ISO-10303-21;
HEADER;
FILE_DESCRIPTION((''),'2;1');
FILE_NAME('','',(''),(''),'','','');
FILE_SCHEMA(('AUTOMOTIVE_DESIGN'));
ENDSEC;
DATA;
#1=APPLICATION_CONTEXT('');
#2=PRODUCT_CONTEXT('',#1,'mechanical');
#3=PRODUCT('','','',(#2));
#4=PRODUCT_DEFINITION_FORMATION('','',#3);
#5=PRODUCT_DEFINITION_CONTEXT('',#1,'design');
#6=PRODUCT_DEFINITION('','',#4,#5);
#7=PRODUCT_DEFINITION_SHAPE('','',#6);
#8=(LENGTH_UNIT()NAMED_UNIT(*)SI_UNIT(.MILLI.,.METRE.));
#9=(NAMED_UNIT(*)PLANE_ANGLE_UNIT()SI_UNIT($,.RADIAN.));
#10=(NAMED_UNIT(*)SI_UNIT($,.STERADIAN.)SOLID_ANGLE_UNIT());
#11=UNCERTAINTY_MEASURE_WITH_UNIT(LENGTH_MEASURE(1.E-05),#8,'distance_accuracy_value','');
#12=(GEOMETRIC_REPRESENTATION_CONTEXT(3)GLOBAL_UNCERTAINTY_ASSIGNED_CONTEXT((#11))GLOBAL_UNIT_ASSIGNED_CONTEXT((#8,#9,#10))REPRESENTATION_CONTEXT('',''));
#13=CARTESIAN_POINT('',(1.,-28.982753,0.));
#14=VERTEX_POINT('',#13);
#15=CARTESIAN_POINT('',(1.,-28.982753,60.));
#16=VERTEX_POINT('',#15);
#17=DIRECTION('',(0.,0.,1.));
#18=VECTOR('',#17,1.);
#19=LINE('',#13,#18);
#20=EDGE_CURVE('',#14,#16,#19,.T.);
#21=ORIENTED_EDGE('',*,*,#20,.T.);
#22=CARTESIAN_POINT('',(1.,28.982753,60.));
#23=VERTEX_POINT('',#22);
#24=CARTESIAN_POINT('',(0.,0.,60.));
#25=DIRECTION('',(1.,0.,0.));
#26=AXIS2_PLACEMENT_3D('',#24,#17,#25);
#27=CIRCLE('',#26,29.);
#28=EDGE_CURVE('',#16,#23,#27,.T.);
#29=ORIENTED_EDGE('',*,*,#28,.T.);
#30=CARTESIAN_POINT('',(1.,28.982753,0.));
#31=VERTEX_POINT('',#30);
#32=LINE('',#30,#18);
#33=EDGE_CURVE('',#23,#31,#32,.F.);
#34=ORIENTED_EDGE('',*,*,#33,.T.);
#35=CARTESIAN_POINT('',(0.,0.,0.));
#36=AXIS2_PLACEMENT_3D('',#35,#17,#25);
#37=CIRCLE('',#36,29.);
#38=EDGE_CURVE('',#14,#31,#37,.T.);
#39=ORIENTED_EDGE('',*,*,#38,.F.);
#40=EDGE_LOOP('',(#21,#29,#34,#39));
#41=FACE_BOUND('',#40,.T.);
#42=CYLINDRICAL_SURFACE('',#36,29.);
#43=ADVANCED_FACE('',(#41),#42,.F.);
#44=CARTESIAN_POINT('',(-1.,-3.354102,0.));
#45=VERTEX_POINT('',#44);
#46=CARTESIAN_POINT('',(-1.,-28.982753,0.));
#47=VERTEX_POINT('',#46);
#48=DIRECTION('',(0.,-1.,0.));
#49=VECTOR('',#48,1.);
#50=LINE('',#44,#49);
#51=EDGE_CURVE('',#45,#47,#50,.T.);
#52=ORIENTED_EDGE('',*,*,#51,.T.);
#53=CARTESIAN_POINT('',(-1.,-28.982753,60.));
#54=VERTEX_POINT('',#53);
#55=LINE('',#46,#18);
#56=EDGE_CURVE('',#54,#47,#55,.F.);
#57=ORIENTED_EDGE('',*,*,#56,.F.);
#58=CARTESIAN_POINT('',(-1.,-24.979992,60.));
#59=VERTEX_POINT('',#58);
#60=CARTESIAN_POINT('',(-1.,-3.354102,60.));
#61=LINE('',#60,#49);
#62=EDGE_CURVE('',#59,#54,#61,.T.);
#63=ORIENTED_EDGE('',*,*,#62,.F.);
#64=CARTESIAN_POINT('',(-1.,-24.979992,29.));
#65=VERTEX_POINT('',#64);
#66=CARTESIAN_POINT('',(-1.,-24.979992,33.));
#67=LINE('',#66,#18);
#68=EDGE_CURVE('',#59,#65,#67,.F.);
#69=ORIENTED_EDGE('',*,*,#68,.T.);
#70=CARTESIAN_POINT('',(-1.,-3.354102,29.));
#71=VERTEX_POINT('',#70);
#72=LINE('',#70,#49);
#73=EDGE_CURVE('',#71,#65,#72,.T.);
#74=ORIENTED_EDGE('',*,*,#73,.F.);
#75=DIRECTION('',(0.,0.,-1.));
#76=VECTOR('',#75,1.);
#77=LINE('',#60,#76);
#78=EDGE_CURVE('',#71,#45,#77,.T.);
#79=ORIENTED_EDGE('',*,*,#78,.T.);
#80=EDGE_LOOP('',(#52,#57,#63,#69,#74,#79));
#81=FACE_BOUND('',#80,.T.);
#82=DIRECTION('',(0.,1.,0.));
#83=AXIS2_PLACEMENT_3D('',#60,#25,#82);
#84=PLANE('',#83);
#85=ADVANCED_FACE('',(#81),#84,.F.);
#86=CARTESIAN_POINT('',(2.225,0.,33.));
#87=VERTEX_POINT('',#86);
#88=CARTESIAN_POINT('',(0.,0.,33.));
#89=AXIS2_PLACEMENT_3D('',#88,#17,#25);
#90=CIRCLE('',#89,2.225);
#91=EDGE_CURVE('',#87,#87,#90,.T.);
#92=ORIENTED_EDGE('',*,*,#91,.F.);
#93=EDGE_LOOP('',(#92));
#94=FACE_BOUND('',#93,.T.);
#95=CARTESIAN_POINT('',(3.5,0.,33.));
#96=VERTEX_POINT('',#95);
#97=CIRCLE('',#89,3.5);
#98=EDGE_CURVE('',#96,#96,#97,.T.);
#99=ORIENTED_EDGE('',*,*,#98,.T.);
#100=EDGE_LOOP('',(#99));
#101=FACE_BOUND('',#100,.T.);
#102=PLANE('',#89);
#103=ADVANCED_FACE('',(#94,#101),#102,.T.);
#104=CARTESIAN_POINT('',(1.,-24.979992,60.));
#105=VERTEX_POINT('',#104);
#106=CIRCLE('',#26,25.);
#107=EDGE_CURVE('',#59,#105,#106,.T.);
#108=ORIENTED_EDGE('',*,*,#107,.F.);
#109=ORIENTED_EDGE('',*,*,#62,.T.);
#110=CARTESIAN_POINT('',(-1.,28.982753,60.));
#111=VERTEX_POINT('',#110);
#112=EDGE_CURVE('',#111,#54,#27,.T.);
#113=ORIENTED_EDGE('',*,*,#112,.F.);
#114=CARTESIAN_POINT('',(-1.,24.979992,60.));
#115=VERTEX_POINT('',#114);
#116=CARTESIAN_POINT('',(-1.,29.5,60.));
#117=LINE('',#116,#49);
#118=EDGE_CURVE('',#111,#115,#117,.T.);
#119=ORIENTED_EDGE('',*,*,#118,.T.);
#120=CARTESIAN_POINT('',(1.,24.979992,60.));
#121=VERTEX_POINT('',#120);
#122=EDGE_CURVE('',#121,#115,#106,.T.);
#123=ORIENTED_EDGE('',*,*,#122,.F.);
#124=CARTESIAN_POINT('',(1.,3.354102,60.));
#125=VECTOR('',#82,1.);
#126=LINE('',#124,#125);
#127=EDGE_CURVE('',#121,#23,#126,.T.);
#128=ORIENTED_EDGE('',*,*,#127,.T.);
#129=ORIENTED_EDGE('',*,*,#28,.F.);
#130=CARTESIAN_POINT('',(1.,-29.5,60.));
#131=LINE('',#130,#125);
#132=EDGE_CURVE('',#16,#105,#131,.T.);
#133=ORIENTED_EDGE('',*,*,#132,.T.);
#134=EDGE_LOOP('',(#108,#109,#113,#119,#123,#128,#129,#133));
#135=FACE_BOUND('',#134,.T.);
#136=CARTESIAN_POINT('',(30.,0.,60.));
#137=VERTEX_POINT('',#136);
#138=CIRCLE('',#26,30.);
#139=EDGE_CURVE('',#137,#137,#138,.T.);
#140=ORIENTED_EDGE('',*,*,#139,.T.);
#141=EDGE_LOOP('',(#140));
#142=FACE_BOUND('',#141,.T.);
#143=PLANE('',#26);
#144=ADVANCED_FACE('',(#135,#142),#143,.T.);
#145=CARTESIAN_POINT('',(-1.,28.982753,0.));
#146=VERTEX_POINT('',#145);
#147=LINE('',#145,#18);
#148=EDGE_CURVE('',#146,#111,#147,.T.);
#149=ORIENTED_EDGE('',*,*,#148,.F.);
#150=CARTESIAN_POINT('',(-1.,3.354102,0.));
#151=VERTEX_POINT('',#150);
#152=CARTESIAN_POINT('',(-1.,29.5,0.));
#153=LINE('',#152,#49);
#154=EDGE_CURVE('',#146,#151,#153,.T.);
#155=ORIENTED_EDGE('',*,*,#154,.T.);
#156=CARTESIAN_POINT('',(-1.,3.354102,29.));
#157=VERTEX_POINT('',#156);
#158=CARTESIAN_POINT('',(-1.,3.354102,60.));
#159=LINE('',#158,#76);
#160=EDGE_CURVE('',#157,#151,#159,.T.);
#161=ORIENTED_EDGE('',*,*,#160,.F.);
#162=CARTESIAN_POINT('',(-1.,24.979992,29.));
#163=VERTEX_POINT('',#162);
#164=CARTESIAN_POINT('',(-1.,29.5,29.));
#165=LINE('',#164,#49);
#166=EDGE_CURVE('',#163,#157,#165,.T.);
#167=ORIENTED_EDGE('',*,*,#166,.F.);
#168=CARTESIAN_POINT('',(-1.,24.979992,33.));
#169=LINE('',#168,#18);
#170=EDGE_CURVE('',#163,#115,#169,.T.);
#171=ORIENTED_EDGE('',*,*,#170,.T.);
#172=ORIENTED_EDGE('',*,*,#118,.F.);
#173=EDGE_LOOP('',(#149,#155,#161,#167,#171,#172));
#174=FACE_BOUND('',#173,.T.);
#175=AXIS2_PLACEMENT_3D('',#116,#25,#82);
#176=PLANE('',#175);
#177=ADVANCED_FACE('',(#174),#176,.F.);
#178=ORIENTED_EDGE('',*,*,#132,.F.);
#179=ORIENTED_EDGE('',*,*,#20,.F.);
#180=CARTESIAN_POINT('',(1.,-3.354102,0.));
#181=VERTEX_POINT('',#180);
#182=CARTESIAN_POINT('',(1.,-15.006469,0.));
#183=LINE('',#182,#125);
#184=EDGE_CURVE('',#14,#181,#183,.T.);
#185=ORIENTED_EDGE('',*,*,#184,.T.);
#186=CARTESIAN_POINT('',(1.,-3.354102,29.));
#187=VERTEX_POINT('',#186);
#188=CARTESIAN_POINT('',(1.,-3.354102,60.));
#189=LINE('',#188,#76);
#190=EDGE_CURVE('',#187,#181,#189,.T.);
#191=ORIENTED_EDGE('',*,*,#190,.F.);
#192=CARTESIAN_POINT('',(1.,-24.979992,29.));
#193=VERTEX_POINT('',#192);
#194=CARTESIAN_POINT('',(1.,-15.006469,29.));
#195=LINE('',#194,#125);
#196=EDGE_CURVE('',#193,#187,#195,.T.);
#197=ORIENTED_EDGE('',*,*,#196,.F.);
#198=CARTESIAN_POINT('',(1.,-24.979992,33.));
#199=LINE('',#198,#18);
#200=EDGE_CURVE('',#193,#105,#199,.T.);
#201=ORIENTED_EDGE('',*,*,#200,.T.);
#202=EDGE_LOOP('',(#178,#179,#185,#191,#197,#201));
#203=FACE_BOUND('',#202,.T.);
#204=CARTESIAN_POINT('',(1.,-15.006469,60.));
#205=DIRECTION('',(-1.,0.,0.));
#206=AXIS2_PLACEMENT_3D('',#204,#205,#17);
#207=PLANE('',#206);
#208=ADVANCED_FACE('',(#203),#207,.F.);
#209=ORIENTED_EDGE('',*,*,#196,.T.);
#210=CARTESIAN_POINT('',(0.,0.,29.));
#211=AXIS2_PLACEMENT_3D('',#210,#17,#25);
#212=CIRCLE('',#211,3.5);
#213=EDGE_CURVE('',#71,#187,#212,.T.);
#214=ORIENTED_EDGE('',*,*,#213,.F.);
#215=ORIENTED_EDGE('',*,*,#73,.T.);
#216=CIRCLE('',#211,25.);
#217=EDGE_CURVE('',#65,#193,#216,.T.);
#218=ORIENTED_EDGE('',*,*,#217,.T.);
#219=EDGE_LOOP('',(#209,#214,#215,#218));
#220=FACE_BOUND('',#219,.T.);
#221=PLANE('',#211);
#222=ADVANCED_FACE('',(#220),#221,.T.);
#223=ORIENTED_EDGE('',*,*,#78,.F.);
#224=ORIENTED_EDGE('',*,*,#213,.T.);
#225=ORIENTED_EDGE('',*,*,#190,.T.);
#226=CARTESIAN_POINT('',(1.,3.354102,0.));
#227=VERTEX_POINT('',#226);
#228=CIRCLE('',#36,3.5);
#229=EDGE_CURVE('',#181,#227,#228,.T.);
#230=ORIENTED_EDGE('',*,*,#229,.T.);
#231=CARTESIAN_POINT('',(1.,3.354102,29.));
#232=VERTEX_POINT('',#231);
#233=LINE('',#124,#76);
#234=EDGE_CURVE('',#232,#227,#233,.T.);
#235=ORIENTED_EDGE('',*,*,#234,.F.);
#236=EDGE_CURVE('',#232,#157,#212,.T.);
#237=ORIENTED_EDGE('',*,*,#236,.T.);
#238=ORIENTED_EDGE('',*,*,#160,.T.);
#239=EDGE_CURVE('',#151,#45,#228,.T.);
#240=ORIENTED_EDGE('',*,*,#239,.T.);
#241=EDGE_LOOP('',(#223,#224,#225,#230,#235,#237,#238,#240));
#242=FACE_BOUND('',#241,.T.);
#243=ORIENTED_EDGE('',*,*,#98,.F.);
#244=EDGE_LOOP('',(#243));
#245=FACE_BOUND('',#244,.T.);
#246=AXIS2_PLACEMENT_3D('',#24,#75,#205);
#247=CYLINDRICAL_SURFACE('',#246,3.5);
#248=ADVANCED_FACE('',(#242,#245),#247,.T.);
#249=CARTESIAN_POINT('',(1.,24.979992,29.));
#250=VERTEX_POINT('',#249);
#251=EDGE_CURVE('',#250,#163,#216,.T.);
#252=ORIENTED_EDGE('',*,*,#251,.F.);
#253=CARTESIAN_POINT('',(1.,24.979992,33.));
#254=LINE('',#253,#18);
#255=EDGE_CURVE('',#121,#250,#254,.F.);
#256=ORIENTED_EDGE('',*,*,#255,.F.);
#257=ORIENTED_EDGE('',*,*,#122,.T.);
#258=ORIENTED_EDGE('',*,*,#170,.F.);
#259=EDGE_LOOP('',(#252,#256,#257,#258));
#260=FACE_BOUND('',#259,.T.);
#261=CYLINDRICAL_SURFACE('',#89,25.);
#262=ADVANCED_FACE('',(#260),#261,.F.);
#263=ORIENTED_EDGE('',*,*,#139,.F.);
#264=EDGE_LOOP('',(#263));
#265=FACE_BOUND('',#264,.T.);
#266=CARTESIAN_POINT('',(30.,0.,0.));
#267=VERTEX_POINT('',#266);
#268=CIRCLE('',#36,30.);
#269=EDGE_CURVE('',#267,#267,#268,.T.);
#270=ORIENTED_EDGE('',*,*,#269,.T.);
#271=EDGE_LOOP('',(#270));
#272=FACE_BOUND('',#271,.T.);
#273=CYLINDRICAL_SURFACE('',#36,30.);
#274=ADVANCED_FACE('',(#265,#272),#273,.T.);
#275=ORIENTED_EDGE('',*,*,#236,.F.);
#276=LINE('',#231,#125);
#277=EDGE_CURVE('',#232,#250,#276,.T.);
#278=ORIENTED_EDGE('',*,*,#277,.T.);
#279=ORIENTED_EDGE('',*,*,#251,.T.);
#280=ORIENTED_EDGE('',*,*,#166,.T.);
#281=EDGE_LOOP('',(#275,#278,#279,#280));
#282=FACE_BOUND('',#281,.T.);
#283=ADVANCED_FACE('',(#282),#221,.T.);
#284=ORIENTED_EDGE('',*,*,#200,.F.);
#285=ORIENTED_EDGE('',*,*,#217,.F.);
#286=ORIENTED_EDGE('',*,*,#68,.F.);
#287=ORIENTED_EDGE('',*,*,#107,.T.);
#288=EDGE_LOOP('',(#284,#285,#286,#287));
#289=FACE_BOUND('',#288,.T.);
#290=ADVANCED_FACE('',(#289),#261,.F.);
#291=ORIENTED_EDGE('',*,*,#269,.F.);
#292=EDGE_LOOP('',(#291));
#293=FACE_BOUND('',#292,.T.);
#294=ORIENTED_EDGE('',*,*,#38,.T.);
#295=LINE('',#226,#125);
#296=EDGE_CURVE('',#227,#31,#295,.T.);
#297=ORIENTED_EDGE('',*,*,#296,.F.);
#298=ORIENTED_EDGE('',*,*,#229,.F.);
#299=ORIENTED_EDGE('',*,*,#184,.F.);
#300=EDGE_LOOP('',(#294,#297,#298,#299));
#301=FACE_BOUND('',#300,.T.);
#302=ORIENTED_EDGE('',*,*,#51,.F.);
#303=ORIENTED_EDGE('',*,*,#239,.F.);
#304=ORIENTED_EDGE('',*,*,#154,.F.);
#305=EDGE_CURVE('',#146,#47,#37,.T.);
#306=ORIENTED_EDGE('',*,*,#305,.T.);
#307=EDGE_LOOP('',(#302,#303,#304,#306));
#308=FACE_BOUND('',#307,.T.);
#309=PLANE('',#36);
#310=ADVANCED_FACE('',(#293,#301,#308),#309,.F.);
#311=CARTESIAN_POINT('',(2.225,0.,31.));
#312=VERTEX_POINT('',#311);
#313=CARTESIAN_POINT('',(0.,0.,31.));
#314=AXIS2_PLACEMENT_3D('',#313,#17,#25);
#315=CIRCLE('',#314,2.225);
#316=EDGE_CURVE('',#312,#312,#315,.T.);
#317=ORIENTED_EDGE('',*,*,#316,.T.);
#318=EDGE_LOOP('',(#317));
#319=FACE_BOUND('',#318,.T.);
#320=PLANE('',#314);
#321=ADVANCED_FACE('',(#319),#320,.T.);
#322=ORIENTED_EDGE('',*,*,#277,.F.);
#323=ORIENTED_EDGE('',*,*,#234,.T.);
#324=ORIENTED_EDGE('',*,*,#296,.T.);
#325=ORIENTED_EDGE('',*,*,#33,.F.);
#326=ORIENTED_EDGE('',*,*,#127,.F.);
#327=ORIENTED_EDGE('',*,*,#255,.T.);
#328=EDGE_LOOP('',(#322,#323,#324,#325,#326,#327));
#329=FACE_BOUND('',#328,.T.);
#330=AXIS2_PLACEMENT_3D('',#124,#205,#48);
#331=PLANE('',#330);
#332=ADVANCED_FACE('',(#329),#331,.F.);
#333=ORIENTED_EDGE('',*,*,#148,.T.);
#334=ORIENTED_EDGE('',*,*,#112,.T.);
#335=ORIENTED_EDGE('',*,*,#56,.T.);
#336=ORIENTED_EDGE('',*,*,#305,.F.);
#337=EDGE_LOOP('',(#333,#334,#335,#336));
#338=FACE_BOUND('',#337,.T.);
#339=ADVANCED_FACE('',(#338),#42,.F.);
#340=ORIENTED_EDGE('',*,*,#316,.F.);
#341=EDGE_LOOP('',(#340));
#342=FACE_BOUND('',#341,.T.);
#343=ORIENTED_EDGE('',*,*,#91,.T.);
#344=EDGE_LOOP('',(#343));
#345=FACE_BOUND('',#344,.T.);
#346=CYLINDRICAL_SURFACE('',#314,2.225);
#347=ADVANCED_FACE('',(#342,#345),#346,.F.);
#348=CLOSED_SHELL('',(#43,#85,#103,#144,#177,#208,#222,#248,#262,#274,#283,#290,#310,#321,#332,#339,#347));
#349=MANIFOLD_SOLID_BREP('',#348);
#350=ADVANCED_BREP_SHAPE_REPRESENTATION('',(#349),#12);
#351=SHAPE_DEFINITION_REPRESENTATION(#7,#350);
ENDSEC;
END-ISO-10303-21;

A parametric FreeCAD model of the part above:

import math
import FreeCAD as App
import Part
import Sketcher
from FreeCAD import Vector
Q = App.Units.Quantity

doc = App.newDocument("Part")
body = doc.addObject("PartDesign::Body", "Body")

# Sketch on XY plane
sketch1 = body.newObject("Sketcher::SketchObject", "Sketch")
sketch1.AttachmentSupport = (doc.getObject("XY_Plane"), [""])
sketch1.MapMode = "FlatFace"
sketch1.addGeometry([
    Part.ArcOfCircle(Part.Circle(Vector(0, 0, 0), Vector(0, 0, 1), 3.5), math.radians(-73), math.radians(73)),  # 0
    Part.LineSegment(Vector(1, 3.4, 0), Vector(1, 29.5, 0)),  # 1
    Part.LineSegment(Vector(1, 29.5, 0), Vector(-1, 29.5, 0)),  # 2
    Part.LineSegment(Vector(-1, 29.5, 0), Vector(-1, 3.4, 0)),  # 3
    Part.ArcOfCircle(Part.Circle(Vector(0, 0, 0), Vector(0, 0, 1), 3.5), math.radians(107), math.radians(253)),  # 4
    Part.LineSegment(Vector(-1, -3.4, 0), Vector(-1, -29.5, 0)),  # 5
    Part.LineSegment(Vector(-1, -29.5, 0), Vector(1, -29.5, 0)),  # 6
    Part.LineSegment(Vector(1, -29.5, 0), Vector(1, -3.4, 0)),  # 7
], False)
sketch1.addConstraint([
    Sketcher.Constraint("Coincident", 0, 2, 1, 1),
    Sketcher.Constraint("Coincident", 1, 2, 2, 1),
    Sketcher.Constraint("Coincident", 2, 2, 3, 1),
    Sketcher.Constraint("Coincident", 3, 2, 4, 1),
    Sketcher.Constraint("Coincident", 4, 2, 5, 1),
    Sketcher.Constraint("Coincident", 5, 2, 6, 1),
    Sketcher.Constraint("Coincident", 6, 2, 7, 1),
    Sketcher.Constraint("Coincident", 7, 2, 0, 1),
    Sketcher.Constraint("Vertical", 1),
    Sketcher.Constraint("Horizontal", 2),
    Sketcher.Constraint("Vertical", 3),
    Sketcher.Constraint("Vertical", 5),
    Sketcher.Constraint("Horizontal", 6),
    Sketcher.Constraint("Vertical", 7),
    Sketcher.Constraint("Coincident", 0, 3, -1, 1),
    Sketcher.Constraint("Coincident", 4, 3, -1, 1),
    Sketcher.Constraint("Equal", 0, 4),
    Sketcher.Constraint("Symmetric", 1, 2, 5, 2, -1, 1),
    Sketcher.Constraint("Horizontal", 0, 2, 3, 2),
    Sketcher.Constraint("Horizontal", 4, 2, 7, 2),
    Sketcher.Constraint("Radius", 0, Q("3.5 mm")),
    Sketcher.Constraint("DistanceX", 2, 2, 2, 1, Q("2 mm")),
    Sketcher.Constraint("DistanceY", -1, 1, 1, 2, Q("29.5 mm")),
])
pad1 = body.newObject("PartDesign::Pad", "Pad")
pad1.Profile = sketch1
pad1.Length = 60

# Sketch on XY plane
sketch2 = body.newObject("Sketcher::SketchObject", "Sketch001")
sketch2.AttachmentSupport = (doc.getObject("XY_Plane"), [""])
sketch2.MapMode = "FlatFace"
sketch2.AttachmentOffset = App.Placement(Vector(0, 0, 60), App.Rotation())
sketch2.addGeometry([
    Part.Circle(Vector(0, 0, 0), Vector(0, 0, 1), 30),
    Part.Circle(Vector(0, 0, 0), Vector(0, 0, 1), 29),
], False)
sketch2.addConstraint([
    Sketcher.Constraint("Coincident", 0, 3, -1, 1),
    Sketcher.Constraint("Coincident", 1, 3, -1, 1),
    Sketcher.Constraint("Diameter", 0, Q("60 mm")),
    Sketcher.Constraint("Diameter", 1, Q("58 mm")),
])
pad2 = body.newObject("PartDesign::Pad", "Pad001")
pad2.Profile = sketch2
pad2.Length = 60
pad2.Reversed = True

# Sketch on XY plane
sketch3 = body.newObject("Sketcher::SketchObject", "Sketch002")
sketch3.AttachmentSupport = (doc.getObject("XY_Plane"), [""])
sketch3.MapMode = "FlatFace"
sketch3.AttachmentOffset = App.Placement(Vector(0, 0, 60), App.Rotation())
sketch3.addGeometry(Part.Circle(Vector(0, 0, 0), Vector(0, 0, 1), 25), False)
sketch3.addConstraint([
    Sketcher.Constraint("Coincident", 0, 3, -1, 1),
    Sketcher.Constraint("Diameter", 0, Q("50 mm")),
])
pocket1 = body.newObject("PartDesign::Pocket", "Pocket")
pocket1.Profile = sketch3
pocket1.Length = 27

# Sketch on XY plane
sketch4 = body.newObject("Sketcher::SketchObject", "Sketch003")
sketch4.AttachmentSupport = (doc.getObject("XY_Plane"), [""])
sketch4.MapMode = "FlatFace"
sketch4.AttachmentOffset = App.Placement(Vector(0, 0, 33), App.Rotation())
sketch4.addGeometry(Part.Circle(Vector(0, 0, 0), Vector(0, 0, 1), 2.2), False)
sketch4.addConstraint([
    Sketcher.Constraint("Coincident", 0, 3, -1, 1),
    Sketcher.Constraint("Diameter", 0, Q("4.45 mm")),
])
pocket2 = body.newObject("PartDesign::Pocket", "Pocket001")
pocket2.Profile = sketch4
pocket2.Length = 2

# Sketch on XY plane
sketch5 = body.newObject("Sketcher::SketchObject", "Sketch004")
sketch5.AttachmentSupport = (doc.getObject("XY_Plane"), [""])
sketch5.MapMode = "FlatFace"
sketch5.AttachmentOffset = App.Placement(Vector(0, 0, 60), App.Rotation())
sketch5.addGeometry([
    Part.Circle(Vector(0, 0, 0), Vector(0, 0, 1), 25),
    Part.Circle(Vector(0, 0, 0), Vector(0, 0, 1), 3.5),
], False)
sketch5.addConstraint([
    Sketcher.Constraint("Coincident", 0, 3, -1, 1),
    Sketcher.Constraint("Coincident", 1, 3, -1, 1),
    Sketcher.Constraint("Diameter", 0, Q("50 mm")),
    Sketcher.Constraint("Diameter", 1, Q("7 mm")),
])
pocket3 = body.newObject("PartDesign::Pocket", "Pocket002")
pocket3.Profile = sketch5
pocket3.Length = 31

doc.recompute()
